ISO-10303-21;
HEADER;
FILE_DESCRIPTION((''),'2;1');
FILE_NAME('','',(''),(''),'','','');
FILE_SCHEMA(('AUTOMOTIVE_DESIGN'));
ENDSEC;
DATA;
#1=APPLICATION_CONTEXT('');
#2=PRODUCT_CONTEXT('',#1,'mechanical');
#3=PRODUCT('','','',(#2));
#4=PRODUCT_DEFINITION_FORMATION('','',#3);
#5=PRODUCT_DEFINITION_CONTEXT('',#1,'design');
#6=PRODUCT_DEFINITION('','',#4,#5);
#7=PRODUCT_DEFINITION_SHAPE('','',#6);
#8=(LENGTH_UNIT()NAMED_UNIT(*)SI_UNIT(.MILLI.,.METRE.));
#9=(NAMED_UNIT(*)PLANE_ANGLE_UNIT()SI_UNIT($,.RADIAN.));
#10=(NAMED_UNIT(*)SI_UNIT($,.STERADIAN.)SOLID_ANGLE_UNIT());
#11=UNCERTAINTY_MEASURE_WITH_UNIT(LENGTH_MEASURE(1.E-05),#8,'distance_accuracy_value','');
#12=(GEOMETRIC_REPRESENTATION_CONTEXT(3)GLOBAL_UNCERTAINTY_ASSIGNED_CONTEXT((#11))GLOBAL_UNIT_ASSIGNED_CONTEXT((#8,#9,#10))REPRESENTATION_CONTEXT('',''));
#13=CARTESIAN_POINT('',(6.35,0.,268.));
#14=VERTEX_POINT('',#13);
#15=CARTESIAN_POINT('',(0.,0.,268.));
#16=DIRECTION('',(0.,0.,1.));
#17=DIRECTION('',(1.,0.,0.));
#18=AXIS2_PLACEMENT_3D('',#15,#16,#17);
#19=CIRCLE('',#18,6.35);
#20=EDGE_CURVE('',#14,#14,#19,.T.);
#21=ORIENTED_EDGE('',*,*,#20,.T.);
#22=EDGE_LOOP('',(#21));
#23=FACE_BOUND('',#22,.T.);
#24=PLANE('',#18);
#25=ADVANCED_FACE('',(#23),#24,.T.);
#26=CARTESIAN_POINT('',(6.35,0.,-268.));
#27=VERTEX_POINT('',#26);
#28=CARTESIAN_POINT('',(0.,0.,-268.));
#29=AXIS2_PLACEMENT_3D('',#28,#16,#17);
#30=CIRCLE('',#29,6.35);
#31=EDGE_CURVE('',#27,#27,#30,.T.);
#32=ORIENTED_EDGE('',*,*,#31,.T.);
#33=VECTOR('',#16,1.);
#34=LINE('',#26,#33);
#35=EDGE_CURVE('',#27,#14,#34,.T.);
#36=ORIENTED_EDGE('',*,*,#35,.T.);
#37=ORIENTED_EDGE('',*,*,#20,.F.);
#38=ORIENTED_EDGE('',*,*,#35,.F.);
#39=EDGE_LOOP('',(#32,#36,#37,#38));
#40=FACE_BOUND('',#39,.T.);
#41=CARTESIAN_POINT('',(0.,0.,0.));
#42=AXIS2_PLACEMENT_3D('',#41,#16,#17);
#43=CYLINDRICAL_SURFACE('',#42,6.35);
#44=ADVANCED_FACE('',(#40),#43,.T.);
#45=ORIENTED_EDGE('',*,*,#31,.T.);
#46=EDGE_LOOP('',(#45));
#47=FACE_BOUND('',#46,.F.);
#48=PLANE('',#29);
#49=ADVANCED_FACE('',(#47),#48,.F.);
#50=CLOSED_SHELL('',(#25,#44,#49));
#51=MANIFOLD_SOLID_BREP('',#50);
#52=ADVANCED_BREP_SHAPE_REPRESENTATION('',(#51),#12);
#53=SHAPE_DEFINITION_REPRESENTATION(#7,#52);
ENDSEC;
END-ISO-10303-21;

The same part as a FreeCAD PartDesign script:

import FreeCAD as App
import Part
import Sketcher
Q = App.Units.Quantity

doc = App.newDocument("Part")
params = doc.addObject("Spreadsheet::Sheet", "Params")
for row, (alias, value) in enumerate([
    ("sketch1_diameter", "12.7 mm"),
    ("pad1_length", "536 mm"),
], start=1):
    params.set(f"A{row}", alias)
    params.set(f"B{row}", "=" + value)
    params.setAlias(f"B{row}", alias)

body = doc.addObject("PartDesign::Body", "Body")

sketch1 = body.newObject("Sketcher::SketchObject", "Sketch")
sketch1.AttachmentSupport = (doc.getObject("XY_Plane"), [""])
sketch1.MapMode = "FlatFace"
sketch1.addGeometry(Part.Circle(App.Vector(0, 0, 0), App.Vector(0, 0, 1), 6), False)
sketch1.addConstraint(Sketcher.Constraint("Coincident", 0, 3, -1, 1))
sketch1.addConstraint(Sketcher.Constraint("Diameter", 0, Q("12.7 mm")))
sketch1.setExpression("Constraints[1]", "Params.sketch1_diameter")
pad1 = body.newObject("PartDesign::Pad", "Pad")
pad1.Profile = sketch1
pad1.setExpression("Length", "Params.pad1_length")
pad1.Midplane = True

doc.recompute()
